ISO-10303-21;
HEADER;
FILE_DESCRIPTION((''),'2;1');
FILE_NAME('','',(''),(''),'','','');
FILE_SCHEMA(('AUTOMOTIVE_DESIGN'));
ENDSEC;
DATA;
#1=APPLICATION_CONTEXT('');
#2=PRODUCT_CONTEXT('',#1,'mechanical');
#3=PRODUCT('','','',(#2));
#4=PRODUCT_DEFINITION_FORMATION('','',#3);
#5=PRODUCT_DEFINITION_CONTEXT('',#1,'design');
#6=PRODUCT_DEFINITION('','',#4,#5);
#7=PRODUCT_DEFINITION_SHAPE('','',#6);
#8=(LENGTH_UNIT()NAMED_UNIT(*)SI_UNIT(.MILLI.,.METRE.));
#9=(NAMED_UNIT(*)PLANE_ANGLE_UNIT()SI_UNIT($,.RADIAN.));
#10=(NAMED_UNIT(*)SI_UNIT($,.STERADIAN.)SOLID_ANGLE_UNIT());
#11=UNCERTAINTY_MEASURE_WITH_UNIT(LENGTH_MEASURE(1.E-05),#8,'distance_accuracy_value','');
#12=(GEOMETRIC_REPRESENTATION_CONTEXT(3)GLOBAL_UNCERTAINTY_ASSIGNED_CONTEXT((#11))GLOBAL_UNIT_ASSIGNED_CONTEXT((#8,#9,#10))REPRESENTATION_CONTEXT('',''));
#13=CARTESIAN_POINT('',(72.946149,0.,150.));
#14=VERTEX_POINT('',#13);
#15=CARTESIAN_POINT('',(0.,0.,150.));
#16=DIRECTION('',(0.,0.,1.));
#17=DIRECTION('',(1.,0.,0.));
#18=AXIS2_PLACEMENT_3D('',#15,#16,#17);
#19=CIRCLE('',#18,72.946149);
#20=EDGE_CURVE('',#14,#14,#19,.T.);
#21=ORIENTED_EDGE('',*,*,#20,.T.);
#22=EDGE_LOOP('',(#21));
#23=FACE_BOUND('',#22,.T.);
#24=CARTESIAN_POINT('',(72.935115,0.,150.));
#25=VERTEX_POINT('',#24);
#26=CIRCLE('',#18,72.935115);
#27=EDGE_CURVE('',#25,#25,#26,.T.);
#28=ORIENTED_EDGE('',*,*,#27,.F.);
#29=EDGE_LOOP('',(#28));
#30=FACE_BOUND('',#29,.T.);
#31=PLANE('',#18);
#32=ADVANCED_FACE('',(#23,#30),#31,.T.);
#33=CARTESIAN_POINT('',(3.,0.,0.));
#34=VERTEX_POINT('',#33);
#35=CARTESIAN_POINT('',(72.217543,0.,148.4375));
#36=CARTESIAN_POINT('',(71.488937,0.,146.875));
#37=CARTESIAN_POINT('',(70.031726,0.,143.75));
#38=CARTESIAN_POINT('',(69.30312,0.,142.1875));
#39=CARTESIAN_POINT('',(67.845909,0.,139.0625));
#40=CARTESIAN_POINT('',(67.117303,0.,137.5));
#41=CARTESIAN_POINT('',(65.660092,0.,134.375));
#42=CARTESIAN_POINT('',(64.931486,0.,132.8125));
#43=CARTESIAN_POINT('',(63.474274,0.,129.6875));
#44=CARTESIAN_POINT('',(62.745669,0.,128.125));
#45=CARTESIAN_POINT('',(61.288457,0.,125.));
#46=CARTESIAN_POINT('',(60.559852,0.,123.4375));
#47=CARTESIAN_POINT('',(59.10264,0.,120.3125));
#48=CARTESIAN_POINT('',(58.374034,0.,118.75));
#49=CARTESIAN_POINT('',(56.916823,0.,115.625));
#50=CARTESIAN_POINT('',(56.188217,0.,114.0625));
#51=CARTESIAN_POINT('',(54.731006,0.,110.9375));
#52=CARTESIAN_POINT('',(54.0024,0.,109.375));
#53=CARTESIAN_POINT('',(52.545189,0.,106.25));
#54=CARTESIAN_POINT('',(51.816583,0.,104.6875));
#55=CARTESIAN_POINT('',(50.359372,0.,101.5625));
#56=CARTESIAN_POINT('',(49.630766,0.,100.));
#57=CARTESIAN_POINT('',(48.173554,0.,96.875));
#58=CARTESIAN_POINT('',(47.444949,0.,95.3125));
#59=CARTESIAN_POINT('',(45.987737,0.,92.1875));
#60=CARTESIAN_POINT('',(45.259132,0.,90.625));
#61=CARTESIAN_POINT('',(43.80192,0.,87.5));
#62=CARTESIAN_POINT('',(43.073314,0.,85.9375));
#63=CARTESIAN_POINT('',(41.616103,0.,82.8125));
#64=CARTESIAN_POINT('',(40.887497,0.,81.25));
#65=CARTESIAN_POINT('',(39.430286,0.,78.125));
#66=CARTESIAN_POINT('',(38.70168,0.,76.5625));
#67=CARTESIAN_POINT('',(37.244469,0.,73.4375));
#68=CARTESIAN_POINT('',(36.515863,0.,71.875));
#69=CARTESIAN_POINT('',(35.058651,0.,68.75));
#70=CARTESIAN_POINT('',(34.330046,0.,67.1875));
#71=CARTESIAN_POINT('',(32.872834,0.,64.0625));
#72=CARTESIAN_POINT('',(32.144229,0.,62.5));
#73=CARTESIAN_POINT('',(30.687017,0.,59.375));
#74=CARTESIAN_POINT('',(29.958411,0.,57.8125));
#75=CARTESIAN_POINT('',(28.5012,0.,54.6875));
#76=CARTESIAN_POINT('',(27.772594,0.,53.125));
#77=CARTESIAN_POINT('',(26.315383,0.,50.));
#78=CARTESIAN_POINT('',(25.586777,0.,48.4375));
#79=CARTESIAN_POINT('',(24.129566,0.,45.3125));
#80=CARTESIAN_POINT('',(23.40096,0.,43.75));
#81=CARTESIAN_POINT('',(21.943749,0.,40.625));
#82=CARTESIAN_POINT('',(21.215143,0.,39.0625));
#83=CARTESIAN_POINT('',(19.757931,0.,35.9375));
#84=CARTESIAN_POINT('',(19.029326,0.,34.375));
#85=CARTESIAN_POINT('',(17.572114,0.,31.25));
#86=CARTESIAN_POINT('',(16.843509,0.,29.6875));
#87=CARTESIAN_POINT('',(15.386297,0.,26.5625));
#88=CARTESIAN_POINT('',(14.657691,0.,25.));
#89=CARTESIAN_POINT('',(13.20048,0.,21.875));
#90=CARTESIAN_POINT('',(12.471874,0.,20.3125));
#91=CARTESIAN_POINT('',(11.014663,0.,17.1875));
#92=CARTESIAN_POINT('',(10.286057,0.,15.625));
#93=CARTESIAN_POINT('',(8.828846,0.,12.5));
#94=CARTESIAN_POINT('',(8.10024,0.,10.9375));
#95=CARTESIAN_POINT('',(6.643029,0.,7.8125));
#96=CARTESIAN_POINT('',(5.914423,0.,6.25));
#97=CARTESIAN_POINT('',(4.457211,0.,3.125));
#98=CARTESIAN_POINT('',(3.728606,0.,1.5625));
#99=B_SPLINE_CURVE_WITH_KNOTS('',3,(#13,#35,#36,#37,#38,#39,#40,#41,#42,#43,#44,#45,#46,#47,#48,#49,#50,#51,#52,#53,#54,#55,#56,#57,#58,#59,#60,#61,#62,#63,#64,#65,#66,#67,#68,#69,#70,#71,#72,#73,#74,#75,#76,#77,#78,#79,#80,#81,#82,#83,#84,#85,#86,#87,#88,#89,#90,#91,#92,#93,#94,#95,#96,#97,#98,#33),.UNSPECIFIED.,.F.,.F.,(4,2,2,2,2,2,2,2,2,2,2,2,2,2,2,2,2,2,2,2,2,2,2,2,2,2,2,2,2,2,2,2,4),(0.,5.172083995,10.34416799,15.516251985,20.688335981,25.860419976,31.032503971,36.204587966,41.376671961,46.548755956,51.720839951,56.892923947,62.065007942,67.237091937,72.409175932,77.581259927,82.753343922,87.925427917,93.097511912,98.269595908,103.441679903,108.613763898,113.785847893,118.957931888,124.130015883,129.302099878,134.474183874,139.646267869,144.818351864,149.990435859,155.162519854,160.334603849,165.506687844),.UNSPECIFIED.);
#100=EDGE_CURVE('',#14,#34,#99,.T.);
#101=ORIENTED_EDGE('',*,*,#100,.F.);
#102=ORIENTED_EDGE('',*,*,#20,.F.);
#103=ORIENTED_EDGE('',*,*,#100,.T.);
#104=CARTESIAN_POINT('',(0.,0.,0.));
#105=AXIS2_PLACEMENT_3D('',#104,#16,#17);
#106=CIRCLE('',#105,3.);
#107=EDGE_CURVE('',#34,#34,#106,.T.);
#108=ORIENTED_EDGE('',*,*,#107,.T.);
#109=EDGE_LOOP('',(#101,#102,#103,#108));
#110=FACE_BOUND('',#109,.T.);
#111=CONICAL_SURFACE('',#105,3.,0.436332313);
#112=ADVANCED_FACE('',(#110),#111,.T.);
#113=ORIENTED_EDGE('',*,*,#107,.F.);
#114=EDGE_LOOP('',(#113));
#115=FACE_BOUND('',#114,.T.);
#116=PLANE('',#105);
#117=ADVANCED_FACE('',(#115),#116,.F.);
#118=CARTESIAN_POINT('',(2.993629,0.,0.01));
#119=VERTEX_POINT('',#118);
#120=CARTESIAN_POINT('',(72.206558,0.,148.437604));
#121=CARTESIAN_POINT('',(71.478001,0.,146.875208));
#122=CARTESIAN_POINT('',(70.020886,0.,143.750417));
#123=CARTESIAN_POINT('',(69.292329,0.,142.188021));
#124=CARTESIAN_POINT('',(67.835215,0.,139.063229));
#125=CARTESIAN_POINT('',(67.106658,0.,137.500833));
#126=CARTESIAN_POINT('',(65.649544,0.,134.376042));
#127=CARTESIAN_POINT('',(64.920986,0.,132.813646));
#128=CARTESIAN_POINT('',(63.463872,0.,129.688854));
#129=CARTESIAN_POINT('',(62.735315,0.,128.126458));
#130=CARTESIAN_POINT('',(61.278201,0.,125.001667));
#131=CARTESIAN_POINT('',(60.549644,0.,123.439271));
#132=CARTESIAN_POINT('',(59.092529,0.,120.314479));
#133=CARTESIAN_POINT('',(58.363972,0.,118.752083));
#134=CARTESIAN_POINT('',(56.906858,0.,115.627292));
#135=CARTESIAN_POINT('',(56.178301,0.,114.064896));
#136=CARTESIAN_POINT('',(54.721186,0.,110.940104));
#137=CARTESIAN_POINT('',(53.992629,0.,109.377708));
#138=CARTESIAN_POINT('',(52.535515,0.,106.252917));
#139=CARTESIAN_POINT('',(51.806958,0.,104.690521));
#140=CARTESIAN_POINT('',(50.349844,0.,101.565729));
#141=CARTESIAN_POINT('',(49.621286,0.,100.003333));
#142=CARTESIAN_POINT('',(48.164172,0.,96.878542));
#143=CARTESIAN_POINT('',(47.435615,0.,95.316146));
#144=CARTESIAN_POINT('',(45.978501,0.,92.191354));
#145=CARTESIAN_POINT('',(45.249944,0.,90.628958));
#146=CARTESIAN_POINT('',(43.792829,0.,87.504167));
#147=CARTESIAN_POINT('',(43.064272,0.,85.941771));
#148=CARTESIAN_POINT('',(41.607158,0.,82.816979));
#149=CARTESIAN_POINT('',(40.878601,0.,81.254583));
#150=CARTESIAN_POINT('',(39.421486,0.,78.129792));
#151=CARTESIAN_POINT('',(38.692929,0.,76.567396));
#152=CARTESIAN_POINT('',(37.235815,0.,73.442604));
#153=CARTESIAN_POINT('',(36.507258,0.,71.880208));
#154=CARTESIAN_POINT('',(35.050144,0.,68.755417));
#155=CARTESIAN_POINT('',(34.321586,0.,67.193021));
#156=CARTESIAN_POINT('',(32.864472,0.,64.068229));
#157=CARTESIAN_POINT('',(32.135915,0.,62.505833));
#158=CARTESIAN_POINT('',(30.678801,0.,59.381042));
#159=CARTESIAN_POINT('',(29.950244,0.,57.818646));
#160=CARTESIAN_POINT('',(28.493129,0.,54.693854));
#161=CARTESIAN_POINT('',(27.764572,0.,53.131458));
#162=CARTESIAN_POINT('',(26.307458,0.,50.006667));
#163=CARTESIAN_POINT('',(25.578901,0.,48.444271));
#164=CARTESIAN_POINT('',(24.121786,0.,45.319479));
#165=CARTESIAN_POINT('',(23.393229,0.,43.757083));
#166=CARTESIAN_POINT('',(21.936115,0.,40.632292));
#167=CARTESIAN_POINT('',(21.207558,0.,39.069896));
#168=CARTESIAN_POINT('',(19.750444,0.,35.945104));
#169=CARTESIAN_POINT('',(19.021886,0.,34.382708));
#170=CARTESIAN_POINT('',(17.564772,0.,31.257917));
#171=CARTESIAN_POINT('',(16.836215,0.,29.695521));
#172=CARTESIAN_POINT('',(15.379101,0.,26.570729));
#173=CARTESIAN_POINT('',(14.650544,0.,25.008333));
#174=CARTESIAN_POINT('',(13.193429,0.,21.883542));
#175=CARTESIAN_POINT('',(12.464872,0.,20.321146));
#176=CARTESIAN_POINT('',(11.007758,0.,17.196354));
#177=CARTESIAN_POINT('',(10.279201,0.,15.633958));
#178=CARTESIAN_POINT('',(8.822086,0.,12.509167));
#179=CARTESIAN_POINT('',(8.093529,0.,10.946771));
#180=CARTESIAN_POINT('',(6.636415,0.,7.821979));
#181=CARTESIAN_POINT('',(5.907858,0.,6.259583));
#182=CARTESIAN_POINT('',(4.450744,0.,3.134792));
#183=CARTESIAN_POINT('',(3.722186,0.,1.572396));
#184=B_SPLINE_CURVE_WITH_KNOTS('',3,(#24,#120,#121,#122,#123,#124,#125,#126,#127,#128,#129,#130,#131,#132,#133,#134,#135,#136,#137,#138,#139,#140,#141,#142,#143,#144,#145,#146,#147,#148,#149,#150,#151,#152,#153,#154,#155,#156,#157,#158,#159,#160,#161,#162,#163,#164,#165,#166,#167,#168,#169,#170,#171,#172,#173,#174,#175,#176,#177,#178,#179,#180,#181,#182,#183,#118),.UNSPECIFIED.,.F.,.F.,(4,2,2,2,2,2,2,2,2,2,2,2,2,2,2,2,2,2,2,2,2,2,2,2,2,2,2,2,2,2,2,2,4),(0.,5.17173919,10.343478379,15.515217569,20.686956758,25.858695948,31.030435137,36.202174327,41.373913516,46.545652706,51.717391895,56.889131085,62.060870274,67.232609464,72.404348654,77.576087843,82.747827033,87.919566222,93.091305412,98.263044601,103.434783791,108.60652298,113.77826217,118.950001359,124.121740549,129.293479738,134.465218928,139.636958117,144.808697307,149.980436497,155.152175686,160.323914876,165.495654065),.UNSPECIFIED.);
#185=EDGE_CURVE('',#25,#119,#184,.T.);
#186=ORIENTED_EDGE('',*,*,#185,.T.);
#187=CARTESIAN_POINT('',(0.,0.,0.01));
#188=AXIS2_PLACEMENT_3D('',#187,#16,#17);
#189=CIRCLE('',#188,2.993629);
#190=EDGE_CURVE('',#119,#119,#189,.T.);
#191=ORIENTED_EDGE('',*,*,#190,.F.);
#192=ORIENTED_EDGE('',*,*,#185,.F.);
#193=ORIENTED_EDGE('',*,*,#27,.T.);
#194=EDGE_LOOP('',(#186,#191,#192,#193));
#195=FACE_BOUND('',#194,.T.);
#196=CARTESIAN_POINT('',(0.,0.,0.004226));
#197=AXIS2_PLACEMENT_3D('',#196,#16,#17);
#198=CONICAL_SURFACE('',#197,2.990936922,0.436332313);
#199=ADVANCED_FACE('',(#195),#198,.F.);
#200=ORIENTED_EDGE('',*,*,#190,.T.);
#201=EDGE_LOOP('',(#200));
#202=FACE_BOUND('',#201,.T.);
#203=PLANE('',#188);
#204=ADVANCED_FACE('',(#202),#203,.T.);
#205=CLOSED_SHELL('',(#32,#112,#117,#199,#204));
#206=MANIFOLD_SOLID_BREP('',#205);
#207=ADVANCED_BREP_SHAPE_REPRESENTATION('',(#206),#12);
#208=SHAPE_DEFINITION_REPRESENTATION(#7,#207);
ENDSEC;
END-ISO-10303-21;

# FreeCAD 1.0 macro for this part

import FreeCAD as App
import Part
import Sketcher
from FreeCAD import Vector
Q = App.Units.Quantity


def faces_at(feature, points):
    """Names of the faces that lie closest to the given points."""
    faces = feature.Shape.Faces
    near = lambda p: min(range(len(faces)), key=lambda i: faces[i].distToShape(Part.Vertex(*p))[0])
    return sorted({f"Face{near(p) + 1}" for p in points})

doc = App.newDocument("Part")
body = doc.addObject("PartDesign::Body", "Body")

# Sketch on XY plane
sketch1 = body.newObject("Sketcher::SketchObject", "Sketch")
sketch1.AttachmentSupport = (doc.getObject("XY_Plane"), [""])
sketch1.MapMode = "FlatFace"
sketch1.addGeometry(Part.Circle(Vector(0, 0, 0), Vector(0, 0, 1), 3), False)
sketch1.addConstraint(Sketcher.Constraint("Coincident", 0, 3, -1, 1))
sketch1.addConstraint(Sketcher.Constraint("Diameter", 0, Q("6 mm")))
pad1 = body.newObject("PartDesign::Pad", "Pad")
pad1.Profile = sketch1
pad1.Length = 150
doc.recompute()

draft = body.newObject("PartDesign::Draft", "Draft")
draft.Base = (pad1, faces_at(pad1, [(-3, 0, 75)]))
draft.NeutralPlane = (doc.getObject("XY_Plane"), [""])
draft.Angle = 25
draft.Reversed = True
doc.recompute()

thickness = body.newObject("PartDesign::Thickness", "Thickness")
thickness.Base = (draft, faces_at(draft, [(0, 0, 150)]))
thickness.Value = 0.01
thickness.Reversed = True
thickness.Join = "Intersection"

doc.recompute()
